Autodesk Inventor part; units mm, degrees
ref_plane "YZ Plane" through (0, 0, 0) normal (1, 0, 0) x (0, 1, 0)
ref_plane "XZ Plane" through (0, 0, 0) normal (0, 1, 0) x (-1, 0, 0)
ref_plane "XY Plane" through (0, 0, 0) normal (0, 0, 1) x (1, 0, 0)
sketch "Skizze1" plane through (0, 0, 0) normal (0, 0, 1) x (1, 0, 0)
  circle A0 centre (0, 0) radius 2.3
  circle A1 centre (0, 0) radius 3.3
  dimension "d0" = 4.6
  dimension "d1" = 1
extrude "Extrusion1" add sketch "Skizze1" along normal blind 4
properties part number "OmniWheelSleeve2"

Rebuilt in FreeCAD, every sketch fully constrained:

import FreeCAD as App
import Part
import Sketcher

doc = App.newDocument("Part")
body = doc.addObject("PartDesign::Body", "Body")

# Sketch on XY plane
sketch1 = body.newObject("Sketcher::SketchObject", "Sketch")
sketch1.AttachmentSupport = (doc.getObject("XY_Plane"), [""])
sketch1.MapMode = "FlatFace"
sketch1.addGeometry([
    Part.Circle(App.Vector(0, 0, 0), App.Vector(0, 0, 1), 3.3),
    Part.Circle(App.Vector(0, 0, 0), App.Vector(0, 0, 1), 2.3),
], False)
sketch1.addConstraint([
    Sketcher.Constraint("Coincident", 0, 3, -1, 1),
    Sketcher.Constraint("Coincident", 1, 3, -1, 1),
    Sketcher.Constraint("Diameter", 1, 4.6),
    Sketcher.Constraint("Diameter", 0, 6.6),
])
pad1 = body.newObject("PartDesign::Pad", "Pad")
pad1.Profile = sketch1
pad1.Length = 4

doc.recompute()
